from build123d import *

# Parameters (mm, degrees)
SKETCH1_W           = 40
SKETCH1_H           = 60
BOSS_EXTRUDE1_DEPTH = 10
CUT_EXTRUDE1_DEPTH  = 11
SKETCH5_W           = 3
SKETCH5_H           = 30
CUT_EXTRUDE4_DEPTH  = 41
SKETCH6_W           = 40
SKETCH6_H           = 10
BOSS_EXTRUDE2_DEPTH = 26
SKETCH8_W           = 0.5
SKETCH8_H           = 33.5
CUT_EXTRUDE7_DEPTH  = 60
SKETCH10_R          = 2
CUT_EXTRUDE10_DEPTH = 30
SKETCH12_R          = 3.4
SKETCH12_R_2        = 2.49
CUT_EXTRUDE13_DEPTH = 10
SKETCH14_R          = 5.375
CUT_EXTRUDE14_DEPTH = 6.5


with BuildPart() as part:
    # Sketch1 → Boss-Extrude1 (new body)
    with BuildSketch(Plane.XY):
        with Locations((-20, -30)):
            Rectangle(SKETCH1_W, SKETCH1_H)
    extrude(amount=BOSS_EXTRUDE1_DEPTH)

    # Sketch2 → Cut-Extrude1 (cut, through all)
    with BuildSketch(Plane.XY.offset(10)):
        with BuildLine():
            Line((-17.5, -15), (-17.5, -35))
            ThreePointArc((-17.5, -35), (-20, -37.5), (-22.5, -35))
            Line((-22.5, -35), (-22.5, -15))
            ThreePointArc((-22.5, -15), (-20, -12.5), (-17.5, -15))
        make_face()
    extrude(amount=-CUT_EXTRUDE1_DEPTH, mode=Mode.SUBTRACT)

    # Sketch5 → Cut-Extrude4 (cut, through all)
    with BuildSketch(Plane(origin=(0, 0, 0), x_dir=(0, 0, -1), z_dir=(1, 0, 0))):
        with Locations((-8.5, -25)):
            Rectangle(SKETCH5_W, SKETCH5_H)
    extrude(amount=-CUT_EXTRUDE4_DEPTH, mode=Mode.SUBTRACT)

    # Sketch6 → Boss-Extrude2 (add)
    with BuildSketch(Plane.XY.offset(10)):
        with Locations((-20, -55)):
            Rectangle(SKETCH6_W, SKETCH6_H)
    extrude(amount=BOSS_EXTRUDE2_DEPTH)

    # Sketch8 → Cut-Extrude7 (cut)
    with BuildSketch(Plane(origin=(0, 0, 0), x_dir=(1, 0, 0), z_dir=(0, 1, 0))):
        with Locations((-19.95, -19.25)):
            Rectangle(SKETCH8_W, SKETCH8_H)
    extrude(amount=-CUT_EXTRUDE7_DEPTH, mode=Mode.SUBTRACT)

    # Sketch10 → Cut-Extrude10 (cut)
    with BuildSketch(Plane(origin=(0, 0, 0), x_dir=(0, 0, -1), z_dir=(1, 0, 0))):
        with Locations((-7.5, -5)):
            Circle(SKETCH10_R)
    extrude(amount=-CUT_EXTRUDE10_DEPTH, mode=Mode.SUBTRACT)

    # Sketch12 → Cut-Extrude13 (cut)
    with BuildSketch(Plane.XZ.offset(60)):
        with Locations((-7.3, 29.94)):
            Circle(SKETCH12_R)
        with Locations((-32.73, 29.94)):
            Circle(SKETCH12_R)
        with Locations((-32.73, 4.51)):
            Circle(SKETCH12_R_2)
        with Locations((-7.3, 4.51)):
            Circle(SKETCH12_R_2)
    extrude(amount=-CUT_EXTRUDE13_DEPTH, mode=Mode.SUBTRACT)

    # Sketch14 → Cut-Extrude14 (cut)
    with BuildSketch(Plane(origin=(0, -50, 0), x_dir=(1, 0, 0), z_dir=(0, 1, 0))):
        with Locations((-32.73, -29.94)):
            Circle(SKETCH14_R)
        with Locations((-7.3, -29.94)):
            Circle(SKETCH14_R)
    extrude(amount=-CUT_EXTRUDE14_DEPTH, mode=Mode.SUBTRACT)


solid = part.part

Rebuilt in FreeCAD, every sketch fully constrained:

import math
import FreeCAD as App
import Part
import Sketcher


def add_polygon(sketch, points):
    """Adds a closed chain of lines whose ends are joined by coincident constraints."""
    first, n = sketch.GeometryCount, len(points)
    for a, b in zip(points, points[1:] + points[:1]):
        sketch.addGeometry(Part.LineSegment(App.Vector(*a, 0), App.Vector(*b, 0)), False)
    for i in range(n):
        sketch.addConstraint(Sketcher.Constraint("Coincident", first + i, 2, first + (i + 1) % n, 1))

doc = App.newDocument("Part")
body = doc.addObject("PartDesign::Body", "Body")

sketch1 = doc.addObject("Sketcher::SketchObject", "Sketch")
body.addObject(sketch1)
sketch1.AttachmentSupport = (doc.XY_Plane, [""])
sketch1.MapMode = "FlatFace"
add_polygon(sketch1, [(-40, 0), (-40, -60), (0, -60), (0, 0)])
sketch1.addConstraint(Sketcher.Constraint("Vertical", 0))
sketch1.addConstraint(Sketcher.Constraint("Horizontal", 1))
sketch1.addConstraint(Sketcher.Constraint("Vertical", 2))
sketch1.addConstraint(Sketcher.Constraint("Horizontal", 3))
sketch1.addConstraint(Sketcher.Constraint("Coincident", 2, 2, -1, 1))
sketch1.addConstraint(Sketcher.Constraint("DistanceX", 1, 1, 1, 2, 40.0))
sketch1.addConstraint(Sketcher.Constraint("DistanceY", 0, 2, 0, 1, 60.0))
pad1 = doc.addObject("PartDesign::Pad", "Pad")
body.addObject(pad1)
pad1.Profile = sketch1
pad1.Length = 10

sketch2 = doc.addObject("Sketcher::SketchObject", "Sketch001")
body.addObject(sketch2)
sketch2.AttachmentSupport = (doc.XY_Plane, [""])
sketch2.MapMode = "FlatFace"
sketch2.AttachmentOffset = App.Placement(App.Vector(0, 0, 10), App.Rotation())
sketch2.addGeometry(Part.LineSegment(App.Vector(-17.5, -35, 0), App.Vector(-17.5, -15, 0)), False)
sketch2.addGeometry(Part.ArcOfCircle(Part.Circle(App.Vector(-20, -15, 0), App.Vector(0, 0, 1), 2.5), math.radians(0), math.radians(180)), False)
sketch2.addGeometry(Part.LineSegment(App.Vector(-22.5, -15, 0), App.Vector(-22.5, -35, 0)), False)
sketch2.addGeometry(Part.ArcOfCircle(Part.Circle(App.Vector(-20, -35, 0), App.Vector(0, 0, 1), 2.5), math.radians(180), math.radians(360)), False)
sketch2.addConstraint(Sketcher.Constraint("Tangent", 0, 2, 1, 1))
sketch2.addConstraint(Sketcher.Constraint("Tangent", 1, 2, 2, 1))
sketch2.addConstraint(Sketcher.Constraint("Tangent", 2, 2, 3, 1))
sketch2.addConstraint(Sketcher.Constraint("Tangent", 3, 2, 0, 1))
sketch2.addConstraint(Sketcher.Constraint("Vertical", 0))
sketch2.addConstraint(Sketcher.Constraint("Vertical", 2))
sketch2.addConstraint(Sketcher.Constraint("Radius", 1, 2.5))
sketch2.addConstraint(Sketcher.Constraint("DistanceY", 0, 1, 0, 2, 20.0))
sketch2.addConstraint(Sketcher.Constraint("DistanceX", 1, 3, -1, 1, 20.0))
sketch2.addConstraint(Sketcher.Constraint("DistanceY", 1, 3, -1, 1, 15.0))
pocket1 = doc.addObject("PartDesign::Pocket", "Pocket")
body.addObject(pocket1)
pocket1.Profile = sketch2
pocket1.Type = "ThroughAll"

sketch3 = doc.addObject("Sketcher::SketchObject", "Sketch002")
body.addObject(sketch3)
sketch3.AttachmentSupport = (doc.YZ_Plane, [""])
sketch3.MapMode = "FlatFace"
add_polygon(sketch3, [(-10, 10), (-40, 10), (-40, 7), (-10, 7)])
sketch3.addConstraint(Sketcher.Constraint("Horizontal", 0))
sketch3.addConstraint(Sketcher.Constraint("Vertical", 1))
sketch3.addConstraint(Sketcher.Constraint("Horizontal", 2))
sketch3.addConstraint(Sketcher.Constraint("Vertical", 3))
sketch3.addConstraint(Sketcher.Constraint("DistanceX", 0, 2, 0, 1, 30.0))
sketch3.addConstraint(Sketcher.Constraint("DistanceY", 1, 2, 1, 1, 3.0))
sketch3.addConstraint(Sketcher.Constraint("DistanceX", 0, 2, -1, 1, 40.0))
sketch3.addConstraint(Sketcher.Constraint("DistanceY", -1, 1, 0, 2, 10.0))
pocket2 = doc.addObject("PartDesign::Pocket", "Pocket001")
body.addObject(pocket2)
pocket2.Profile = sketch3
pocket2.Type = "ThroughAll"

sketch4 = doc.addObject("Sketcher::SketchObject", "Sketch003")
body.addObject(sketch4)
sketch4.AttachmentSupport = (doc.XY_Plane, [""])
sketch4.MapMode = "FlatFace"
sketch4.AttachmentOffset = App.Placement(App.Vector(0, 0, 10), App.Rotation())
add_polygon(sketch4, [(-40, -50), (-40, -60), (0, -60), (0, -50)])
sketch4.addConstraint(Sketcher.Constraint("Vertical", 0))
sketch4.addConstraint(Sketcher.Constraint("Horizontal", 1))
sketch4.addConstraint(Sketcher.Constraint("Vertical", 2))
sketch4.addConstraint(Sketcher.Constraint("Horizontal", 3))
sketch4.addConstraint(Sketcher.Constraint("PointOnObject", 1, 2, -2))
sketch4.addConstraint(Sketcher.Constraint("DistanceX", 1, 1, 1, 2, 40.0))
sketch4.addConstraint(Sketcher.Constraint("DistanceY", 0, 2, 0, 1, 10.0))
sketch4.addConstraint(Sketcher.Constraint("DistanceY", 0, 2, -1, 1, 60.0))
pad2 = doc.addObject("PartDesign::Pad", "Pad001")
body.addObject(pad2)
pad2.Profile = sketch4
pad2.Length = 26

sketch5 = doc.addObject("Sketcher::SketchObject", "Sketch004")
body.addObject(sketch5)
sketch5.AttachmentSupport = (doc.XZ_Plane, [""])
sketch5.MapMode = "FlatFace"
add_polygon(sketch5, [(-20.2, 2.5), (-20.2, 36), (-19.7, 36), (-19.7, 2.5)])
sketch5.addConstraint(Sketcher.Constraint("Vertical", 0))
sketch5.addConstraint(Sketcher.Constraint("Horizontal", 1))
sketch5.addConstraint(Sketcher.Constraint("Vertical", 2))
sketch5.addConstraint(Sketcher.Constraint("Horizontal", 3))
sketch5.addConstraint(Sketcher.Constraint("DistanceX", 1, 1, 1, 2, 0.5))
sketch5.addConstraint(Sketcher.Constraint("DistanceY", 0, 1, 0, 2, 33.5))
sketch5.addConstraint(Sketcher.Constraint("DistanceY", -1, 1, 0, 2, 36.0))
sketch5.addConstraint(Sketcher.Constraint("DistanceX", 0, 2, -1, 1, 20.2))
pocket3 = doc.addObject("PartDesign::Pocket", "Pocket002")
body.addObject(pocket3)
pocket3.Profile = sketch5
pocket3.Length = 60
pocket3.Reversed = True

sketch6 = doc.addObject("Sketcher::SketchObject", "Sketch005")
body.addObject(sketch6)
sketch6.AttachmentSupport = (doc.YZ_Plane, [""])
sketch6.MapMode = "FlatFace"
sketch6.addGeometry(Part.Circle(App.Vector(-5, 7.5, 0), App.Vector(0, 0, 1), 2), False)
sketch6.addConstraint(Sketcher.Constraint("Diameter", 0, 4.0))
sketch6.addConstraint(Sketcher.Constraint("DistanceX", 0, 3, -1, 1, 5.0))
sketch6.addConstraint(Sketcher.Constraint("DistanceY", -1, 1, 0, 3, 7.5))
pocket4 = doc.addObject("PartDesign::Pocket", "Pocket003")
body.addObject(pocket4)
pocket4.Profile = sketch6
pocket4.Length = 30

sketch7 = doc.addObject("Sketcher::SketchObject", "Sketch006")
body.addObject(sketch7)
sketch7.AttachmentSupport = (doc.XZ_Plane, [""])
sketch7.MapMode = "FlatFace"
sketch7.AttachmentOffset = App.Placement(App.Vector(0, 0, 60), App.Rotation())
sketch7.addGeometry(Part.Circle(App.Vector(-7.3, 29.9, 0), App.Vector(0, 0, 1), 3.4), False)
sketch7.addGeometry(Part.Circle(App.Vector(-32.7, 29.9, 0), App.Vector(0, 0, 1), 3.4), False)
sketch7.addGeometry(Part.Circle(App.Vector(-32.7, 4.5, 0), App.Vector(0, 0, 1), 2.5), False)
sketch7.addGeometry(Part.Circle(App.Vector(-7.3, 4.5, 0), App.Vector(0, 0, 1), 2.5), False)
sketch7.addConstraint(Sketcher.Constraint("Equal", 0, 1))
sketch7.addConstraint(Sketcher.Constraint("Equal", 2, 3))
sketch7.addConstraint(Sketcher.Constraint("Horizontal", 0, 3, 1, 3))
sketch7.addConstraint(Sketcher.Constraint("Horizontal", 2, 3, 3, 3))
sketch7.addConstraint(Sketcher.Constraint("Vertical", 1, 3, 2, 3))
sketch7.addConstraint(Sketcher.Constraint("Vertical", 0, 3, 3, 3))
sketch7.addConstraint(Sketcher.Constraint("Diameter", 0, 6.8))
sketch7.addConstraint(Sketcher.Constraint("Diameter", 2, 4.98))
sketch7.addConstraint(Sketcher.Constraint("DistanceX", 0, 3, -1, 1, 7.3))
sketch7.addConstraint(Sketcher.Constraint("DistanceY", -1, 1, 0, 3, 29.94))
sketch7.addConstraint(Sketcher.Constraint("DistanceX", 1, 3, -1, 1, 32.73))
sketch7.addConstraint(Sketcher.Constraint("DistanceY", -1, 1, 2, 3, 4.51))
pocket5 = doc.addObject("PartDesign::Pocket", "Pocket004")
body.addObject(pocket5)
pocket5.Profile = sketch7
pocket5.Length = 10

sketch8 = doc.addObject("Sketcher::SketchObject", "Sketch007")
body.addObject(sketch8)
sketch8.AttachmentSupport = (doc.XZ_Plane, [""])
sketch8.MapMode = "FlatFace"
sketch8.AttachmentOffset = App.Placement(App.Vector(0, 0, 50), App.Rotation())
sketch8.addGeometry(Part.Circle(App.Vector(-33, 30, 0), App.Vector(0, 0, 1), 5), False)
sketch8.addGeometry(Part.Circle(App.Vector(-7, 30, 0), App.Vector(0, 0, 1), 5), False)
sketch8.addConstraint(Sketcher.Constraint("Equal", 0, 1))
sketch8.addConstraint(Sketcher.Constraint("Horizontal", 0, 3, 1, 3))
sketch8.addConstraint(Sketcher.Constraint("Diameter", 0, 10.75))
sketch8.addConstraint(Sketcher.Constraint("DistanceX", 1, 3, -1, 1, 7.3))
sketch8.addConstraint(Sketcher.Constraint("DistanceX", 0, 3, -1, 1, 32.73))
sketch8.addConstraint(Sketcher.Constraint("DistanceY", -1, 1, 0, 3, 29.94))
pocket6 = doc.addObject("PartDesign::Pocket", "Pocket005")
body.addObject(pocket6)
pocket6.Profile = sketch8
pocket6.Length = 6.5
pocket6.Reversed = True

doc.recompute()
